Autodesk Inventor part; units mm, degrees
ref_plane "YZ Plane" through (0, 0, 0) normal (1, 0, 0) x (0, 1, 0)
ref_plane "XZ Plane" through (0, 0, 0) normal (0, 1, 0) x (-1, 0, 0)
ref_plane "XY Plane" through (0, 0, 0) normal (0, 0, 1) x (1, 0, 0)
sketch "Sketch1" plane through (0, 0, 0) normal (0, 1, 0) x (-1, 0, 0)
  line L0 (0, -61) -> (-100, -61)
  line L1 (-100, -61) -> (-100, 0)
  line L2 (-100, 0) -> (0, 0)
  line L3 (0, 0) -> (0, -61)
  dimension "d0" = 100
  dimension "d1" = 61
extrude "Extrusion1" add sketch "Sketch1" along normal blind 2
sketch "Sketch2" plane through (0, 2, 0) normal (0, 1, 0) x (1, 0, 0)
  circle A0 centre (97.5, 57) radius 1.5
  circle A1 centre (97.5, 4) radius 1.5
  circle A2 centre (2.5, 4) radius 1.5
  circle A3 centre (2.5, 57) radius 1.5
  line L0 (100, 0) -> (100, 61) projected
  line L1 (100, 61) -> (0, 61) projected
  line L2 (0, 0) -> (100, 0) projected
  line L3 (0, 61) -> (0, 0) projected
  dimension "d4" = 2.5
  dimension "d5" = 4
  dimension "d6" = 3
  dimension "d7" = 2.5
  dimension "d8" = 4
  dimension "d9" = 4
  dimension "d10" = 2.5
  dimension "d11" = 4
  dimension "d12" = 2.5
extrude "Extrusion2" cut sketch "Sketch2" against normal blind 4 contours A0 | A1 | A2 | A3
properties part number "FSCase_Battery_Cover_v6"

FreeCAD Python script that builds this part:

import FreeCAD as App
import Part
import Sketcher
Q = App.Units.Quantity


def add_polygon(sketch, points):
    """Adds a closed chain of lines whose ends are joined by coincident constraints."""
    first, n = sketch.GeometryCount, len(points)
    for a, b in zip(points, points[1:] + points[:1]):
        sketch.addGeometry(Part.LineSegment(App.Vector(*a, 0), App.Vector(*b, 0)), False)
    for i in range(n):
        sketch.addConstraint(Sketcher.Constraint("Coincident", first + i, 2, first + (i + 1) % n, 1))

doc = App.newDocument("Part")
body = doc.addObject("PartDesign::Body", "Body")

sketch1 = body.newObject("Sketcher::SketchObject", "Sketch")
sketch1.AttachmentSupport = (doc.getObject("XZ_Plane"), [""])
sketch1.MapMode = "FlatFace"
add_polygon(sketch1, [(100, -61), (0, -61), (0, 0), (100, 0)])
sketch1.addConstraint(Sketcher.Constraint("Horizontal", 0))
sketch1.addConstraint(Sketcher.Constraint("Vertical", 1))
sketch1.addConstraint(Sketcher.Constraint("Horizontal", 2))
sketch1.addConstraint(Sketcher.Constraint("Vertical", 3))
sketch1.addConstraint(Sketcher.Constraint("Coincident", 1, 2, -1, 1))
sketch1.addConstraint(Sketcher.Constraint("DistanceX", 0, 2, 0, 1, Q("100 mm")))
sketch1.addConstraint(Sketcher.Constraint("DistanceY", 1, 1, 1, 2, Q("61 mm")))
pad1 = body.newObject("PartDesign::Pad", "Pad")
pad1.Profile = sketch1
pad1.Length = 2
pad1.Reversed = True

sketch2 = body.newObject("Sketcher::SketchObject", "Sketch001")
sketch2.AttachmentSupport = (doc.getObject("XZ_Plane"), [""])
sketch2.MapMode = "FlatFace"
sketch2.AttachmentOffset = App.Placement(App.Vector(0, 0, -2), App.Rotation())
sketch2.addGeometry(Part.Circle(App.Vector(97.5, -57, 0), App.Vector(0, 0, 1), 1.5), False)
sketch2.addGeometry(Part.Circle(App.Vector(97.5, -4, 0), App.Vector(0, 0, 1), 1.5), False)
sketch2.addGeometry(Part.Circle(App.Vector(2.5, -4, 0), App.Vector(0, 0, 1), 1.5), False)
sketch2.addGeometry(Part.Circle(App.Vector(2.5, -57, 0), App.Vector(0, 0, 1), 1.5), False)
sketch2.addConstraint(Sketcher.Constraint("Equal", 0, 1))
sketch2.addConstraint(Sketcher.Constraint("Equal", 1, 2))
sketch2.addConstraint(Sketcher.Constraint("Equal", 2, 3))
sketch2.addConstraint(Sketcher.Constraint("Horizontal", 1, 3, 2, 3))
sketch2.addConstraint(Sketcher.Constraint("Horizontal", 0, 3, 3, 3))
sketch2.addConstraint(Sketcher.Constraint("Vertical", 0, 3, 1, 3))
sketch2.addConstraint(Sketcher.Constraint("Vertical", 2, 3, 3, 3))
sketch2.addConstraint(Sketcher.Constraint("Diameter", 0, Q("3 mm")))
sketch2.addConstraint(Sketcher.Constraint("DistanceY", 1, 3, -1, 1, Q("4 mm")))
sketch2.addConstraint(Sketcher.Constraint("DistanceX", -1, 1, 2, 3, Q("2.5 mm")))
sketch2.addConstraint(Sketcher.Constraint("DistanceY", 0, 3, -1, 1, Q("57 mm")))
sketch2.addConstraint(Sketcher.Constraint("DistanceX", 2, 3, 1, 3, Q("95 mm")))
pocket1 = body.newObject("PartDesign::Pocket", "Pocket")
pocket1.Profile = sketch2
pocket1.Length = 4
pocket1.Reversed = True

doc.recompute()
